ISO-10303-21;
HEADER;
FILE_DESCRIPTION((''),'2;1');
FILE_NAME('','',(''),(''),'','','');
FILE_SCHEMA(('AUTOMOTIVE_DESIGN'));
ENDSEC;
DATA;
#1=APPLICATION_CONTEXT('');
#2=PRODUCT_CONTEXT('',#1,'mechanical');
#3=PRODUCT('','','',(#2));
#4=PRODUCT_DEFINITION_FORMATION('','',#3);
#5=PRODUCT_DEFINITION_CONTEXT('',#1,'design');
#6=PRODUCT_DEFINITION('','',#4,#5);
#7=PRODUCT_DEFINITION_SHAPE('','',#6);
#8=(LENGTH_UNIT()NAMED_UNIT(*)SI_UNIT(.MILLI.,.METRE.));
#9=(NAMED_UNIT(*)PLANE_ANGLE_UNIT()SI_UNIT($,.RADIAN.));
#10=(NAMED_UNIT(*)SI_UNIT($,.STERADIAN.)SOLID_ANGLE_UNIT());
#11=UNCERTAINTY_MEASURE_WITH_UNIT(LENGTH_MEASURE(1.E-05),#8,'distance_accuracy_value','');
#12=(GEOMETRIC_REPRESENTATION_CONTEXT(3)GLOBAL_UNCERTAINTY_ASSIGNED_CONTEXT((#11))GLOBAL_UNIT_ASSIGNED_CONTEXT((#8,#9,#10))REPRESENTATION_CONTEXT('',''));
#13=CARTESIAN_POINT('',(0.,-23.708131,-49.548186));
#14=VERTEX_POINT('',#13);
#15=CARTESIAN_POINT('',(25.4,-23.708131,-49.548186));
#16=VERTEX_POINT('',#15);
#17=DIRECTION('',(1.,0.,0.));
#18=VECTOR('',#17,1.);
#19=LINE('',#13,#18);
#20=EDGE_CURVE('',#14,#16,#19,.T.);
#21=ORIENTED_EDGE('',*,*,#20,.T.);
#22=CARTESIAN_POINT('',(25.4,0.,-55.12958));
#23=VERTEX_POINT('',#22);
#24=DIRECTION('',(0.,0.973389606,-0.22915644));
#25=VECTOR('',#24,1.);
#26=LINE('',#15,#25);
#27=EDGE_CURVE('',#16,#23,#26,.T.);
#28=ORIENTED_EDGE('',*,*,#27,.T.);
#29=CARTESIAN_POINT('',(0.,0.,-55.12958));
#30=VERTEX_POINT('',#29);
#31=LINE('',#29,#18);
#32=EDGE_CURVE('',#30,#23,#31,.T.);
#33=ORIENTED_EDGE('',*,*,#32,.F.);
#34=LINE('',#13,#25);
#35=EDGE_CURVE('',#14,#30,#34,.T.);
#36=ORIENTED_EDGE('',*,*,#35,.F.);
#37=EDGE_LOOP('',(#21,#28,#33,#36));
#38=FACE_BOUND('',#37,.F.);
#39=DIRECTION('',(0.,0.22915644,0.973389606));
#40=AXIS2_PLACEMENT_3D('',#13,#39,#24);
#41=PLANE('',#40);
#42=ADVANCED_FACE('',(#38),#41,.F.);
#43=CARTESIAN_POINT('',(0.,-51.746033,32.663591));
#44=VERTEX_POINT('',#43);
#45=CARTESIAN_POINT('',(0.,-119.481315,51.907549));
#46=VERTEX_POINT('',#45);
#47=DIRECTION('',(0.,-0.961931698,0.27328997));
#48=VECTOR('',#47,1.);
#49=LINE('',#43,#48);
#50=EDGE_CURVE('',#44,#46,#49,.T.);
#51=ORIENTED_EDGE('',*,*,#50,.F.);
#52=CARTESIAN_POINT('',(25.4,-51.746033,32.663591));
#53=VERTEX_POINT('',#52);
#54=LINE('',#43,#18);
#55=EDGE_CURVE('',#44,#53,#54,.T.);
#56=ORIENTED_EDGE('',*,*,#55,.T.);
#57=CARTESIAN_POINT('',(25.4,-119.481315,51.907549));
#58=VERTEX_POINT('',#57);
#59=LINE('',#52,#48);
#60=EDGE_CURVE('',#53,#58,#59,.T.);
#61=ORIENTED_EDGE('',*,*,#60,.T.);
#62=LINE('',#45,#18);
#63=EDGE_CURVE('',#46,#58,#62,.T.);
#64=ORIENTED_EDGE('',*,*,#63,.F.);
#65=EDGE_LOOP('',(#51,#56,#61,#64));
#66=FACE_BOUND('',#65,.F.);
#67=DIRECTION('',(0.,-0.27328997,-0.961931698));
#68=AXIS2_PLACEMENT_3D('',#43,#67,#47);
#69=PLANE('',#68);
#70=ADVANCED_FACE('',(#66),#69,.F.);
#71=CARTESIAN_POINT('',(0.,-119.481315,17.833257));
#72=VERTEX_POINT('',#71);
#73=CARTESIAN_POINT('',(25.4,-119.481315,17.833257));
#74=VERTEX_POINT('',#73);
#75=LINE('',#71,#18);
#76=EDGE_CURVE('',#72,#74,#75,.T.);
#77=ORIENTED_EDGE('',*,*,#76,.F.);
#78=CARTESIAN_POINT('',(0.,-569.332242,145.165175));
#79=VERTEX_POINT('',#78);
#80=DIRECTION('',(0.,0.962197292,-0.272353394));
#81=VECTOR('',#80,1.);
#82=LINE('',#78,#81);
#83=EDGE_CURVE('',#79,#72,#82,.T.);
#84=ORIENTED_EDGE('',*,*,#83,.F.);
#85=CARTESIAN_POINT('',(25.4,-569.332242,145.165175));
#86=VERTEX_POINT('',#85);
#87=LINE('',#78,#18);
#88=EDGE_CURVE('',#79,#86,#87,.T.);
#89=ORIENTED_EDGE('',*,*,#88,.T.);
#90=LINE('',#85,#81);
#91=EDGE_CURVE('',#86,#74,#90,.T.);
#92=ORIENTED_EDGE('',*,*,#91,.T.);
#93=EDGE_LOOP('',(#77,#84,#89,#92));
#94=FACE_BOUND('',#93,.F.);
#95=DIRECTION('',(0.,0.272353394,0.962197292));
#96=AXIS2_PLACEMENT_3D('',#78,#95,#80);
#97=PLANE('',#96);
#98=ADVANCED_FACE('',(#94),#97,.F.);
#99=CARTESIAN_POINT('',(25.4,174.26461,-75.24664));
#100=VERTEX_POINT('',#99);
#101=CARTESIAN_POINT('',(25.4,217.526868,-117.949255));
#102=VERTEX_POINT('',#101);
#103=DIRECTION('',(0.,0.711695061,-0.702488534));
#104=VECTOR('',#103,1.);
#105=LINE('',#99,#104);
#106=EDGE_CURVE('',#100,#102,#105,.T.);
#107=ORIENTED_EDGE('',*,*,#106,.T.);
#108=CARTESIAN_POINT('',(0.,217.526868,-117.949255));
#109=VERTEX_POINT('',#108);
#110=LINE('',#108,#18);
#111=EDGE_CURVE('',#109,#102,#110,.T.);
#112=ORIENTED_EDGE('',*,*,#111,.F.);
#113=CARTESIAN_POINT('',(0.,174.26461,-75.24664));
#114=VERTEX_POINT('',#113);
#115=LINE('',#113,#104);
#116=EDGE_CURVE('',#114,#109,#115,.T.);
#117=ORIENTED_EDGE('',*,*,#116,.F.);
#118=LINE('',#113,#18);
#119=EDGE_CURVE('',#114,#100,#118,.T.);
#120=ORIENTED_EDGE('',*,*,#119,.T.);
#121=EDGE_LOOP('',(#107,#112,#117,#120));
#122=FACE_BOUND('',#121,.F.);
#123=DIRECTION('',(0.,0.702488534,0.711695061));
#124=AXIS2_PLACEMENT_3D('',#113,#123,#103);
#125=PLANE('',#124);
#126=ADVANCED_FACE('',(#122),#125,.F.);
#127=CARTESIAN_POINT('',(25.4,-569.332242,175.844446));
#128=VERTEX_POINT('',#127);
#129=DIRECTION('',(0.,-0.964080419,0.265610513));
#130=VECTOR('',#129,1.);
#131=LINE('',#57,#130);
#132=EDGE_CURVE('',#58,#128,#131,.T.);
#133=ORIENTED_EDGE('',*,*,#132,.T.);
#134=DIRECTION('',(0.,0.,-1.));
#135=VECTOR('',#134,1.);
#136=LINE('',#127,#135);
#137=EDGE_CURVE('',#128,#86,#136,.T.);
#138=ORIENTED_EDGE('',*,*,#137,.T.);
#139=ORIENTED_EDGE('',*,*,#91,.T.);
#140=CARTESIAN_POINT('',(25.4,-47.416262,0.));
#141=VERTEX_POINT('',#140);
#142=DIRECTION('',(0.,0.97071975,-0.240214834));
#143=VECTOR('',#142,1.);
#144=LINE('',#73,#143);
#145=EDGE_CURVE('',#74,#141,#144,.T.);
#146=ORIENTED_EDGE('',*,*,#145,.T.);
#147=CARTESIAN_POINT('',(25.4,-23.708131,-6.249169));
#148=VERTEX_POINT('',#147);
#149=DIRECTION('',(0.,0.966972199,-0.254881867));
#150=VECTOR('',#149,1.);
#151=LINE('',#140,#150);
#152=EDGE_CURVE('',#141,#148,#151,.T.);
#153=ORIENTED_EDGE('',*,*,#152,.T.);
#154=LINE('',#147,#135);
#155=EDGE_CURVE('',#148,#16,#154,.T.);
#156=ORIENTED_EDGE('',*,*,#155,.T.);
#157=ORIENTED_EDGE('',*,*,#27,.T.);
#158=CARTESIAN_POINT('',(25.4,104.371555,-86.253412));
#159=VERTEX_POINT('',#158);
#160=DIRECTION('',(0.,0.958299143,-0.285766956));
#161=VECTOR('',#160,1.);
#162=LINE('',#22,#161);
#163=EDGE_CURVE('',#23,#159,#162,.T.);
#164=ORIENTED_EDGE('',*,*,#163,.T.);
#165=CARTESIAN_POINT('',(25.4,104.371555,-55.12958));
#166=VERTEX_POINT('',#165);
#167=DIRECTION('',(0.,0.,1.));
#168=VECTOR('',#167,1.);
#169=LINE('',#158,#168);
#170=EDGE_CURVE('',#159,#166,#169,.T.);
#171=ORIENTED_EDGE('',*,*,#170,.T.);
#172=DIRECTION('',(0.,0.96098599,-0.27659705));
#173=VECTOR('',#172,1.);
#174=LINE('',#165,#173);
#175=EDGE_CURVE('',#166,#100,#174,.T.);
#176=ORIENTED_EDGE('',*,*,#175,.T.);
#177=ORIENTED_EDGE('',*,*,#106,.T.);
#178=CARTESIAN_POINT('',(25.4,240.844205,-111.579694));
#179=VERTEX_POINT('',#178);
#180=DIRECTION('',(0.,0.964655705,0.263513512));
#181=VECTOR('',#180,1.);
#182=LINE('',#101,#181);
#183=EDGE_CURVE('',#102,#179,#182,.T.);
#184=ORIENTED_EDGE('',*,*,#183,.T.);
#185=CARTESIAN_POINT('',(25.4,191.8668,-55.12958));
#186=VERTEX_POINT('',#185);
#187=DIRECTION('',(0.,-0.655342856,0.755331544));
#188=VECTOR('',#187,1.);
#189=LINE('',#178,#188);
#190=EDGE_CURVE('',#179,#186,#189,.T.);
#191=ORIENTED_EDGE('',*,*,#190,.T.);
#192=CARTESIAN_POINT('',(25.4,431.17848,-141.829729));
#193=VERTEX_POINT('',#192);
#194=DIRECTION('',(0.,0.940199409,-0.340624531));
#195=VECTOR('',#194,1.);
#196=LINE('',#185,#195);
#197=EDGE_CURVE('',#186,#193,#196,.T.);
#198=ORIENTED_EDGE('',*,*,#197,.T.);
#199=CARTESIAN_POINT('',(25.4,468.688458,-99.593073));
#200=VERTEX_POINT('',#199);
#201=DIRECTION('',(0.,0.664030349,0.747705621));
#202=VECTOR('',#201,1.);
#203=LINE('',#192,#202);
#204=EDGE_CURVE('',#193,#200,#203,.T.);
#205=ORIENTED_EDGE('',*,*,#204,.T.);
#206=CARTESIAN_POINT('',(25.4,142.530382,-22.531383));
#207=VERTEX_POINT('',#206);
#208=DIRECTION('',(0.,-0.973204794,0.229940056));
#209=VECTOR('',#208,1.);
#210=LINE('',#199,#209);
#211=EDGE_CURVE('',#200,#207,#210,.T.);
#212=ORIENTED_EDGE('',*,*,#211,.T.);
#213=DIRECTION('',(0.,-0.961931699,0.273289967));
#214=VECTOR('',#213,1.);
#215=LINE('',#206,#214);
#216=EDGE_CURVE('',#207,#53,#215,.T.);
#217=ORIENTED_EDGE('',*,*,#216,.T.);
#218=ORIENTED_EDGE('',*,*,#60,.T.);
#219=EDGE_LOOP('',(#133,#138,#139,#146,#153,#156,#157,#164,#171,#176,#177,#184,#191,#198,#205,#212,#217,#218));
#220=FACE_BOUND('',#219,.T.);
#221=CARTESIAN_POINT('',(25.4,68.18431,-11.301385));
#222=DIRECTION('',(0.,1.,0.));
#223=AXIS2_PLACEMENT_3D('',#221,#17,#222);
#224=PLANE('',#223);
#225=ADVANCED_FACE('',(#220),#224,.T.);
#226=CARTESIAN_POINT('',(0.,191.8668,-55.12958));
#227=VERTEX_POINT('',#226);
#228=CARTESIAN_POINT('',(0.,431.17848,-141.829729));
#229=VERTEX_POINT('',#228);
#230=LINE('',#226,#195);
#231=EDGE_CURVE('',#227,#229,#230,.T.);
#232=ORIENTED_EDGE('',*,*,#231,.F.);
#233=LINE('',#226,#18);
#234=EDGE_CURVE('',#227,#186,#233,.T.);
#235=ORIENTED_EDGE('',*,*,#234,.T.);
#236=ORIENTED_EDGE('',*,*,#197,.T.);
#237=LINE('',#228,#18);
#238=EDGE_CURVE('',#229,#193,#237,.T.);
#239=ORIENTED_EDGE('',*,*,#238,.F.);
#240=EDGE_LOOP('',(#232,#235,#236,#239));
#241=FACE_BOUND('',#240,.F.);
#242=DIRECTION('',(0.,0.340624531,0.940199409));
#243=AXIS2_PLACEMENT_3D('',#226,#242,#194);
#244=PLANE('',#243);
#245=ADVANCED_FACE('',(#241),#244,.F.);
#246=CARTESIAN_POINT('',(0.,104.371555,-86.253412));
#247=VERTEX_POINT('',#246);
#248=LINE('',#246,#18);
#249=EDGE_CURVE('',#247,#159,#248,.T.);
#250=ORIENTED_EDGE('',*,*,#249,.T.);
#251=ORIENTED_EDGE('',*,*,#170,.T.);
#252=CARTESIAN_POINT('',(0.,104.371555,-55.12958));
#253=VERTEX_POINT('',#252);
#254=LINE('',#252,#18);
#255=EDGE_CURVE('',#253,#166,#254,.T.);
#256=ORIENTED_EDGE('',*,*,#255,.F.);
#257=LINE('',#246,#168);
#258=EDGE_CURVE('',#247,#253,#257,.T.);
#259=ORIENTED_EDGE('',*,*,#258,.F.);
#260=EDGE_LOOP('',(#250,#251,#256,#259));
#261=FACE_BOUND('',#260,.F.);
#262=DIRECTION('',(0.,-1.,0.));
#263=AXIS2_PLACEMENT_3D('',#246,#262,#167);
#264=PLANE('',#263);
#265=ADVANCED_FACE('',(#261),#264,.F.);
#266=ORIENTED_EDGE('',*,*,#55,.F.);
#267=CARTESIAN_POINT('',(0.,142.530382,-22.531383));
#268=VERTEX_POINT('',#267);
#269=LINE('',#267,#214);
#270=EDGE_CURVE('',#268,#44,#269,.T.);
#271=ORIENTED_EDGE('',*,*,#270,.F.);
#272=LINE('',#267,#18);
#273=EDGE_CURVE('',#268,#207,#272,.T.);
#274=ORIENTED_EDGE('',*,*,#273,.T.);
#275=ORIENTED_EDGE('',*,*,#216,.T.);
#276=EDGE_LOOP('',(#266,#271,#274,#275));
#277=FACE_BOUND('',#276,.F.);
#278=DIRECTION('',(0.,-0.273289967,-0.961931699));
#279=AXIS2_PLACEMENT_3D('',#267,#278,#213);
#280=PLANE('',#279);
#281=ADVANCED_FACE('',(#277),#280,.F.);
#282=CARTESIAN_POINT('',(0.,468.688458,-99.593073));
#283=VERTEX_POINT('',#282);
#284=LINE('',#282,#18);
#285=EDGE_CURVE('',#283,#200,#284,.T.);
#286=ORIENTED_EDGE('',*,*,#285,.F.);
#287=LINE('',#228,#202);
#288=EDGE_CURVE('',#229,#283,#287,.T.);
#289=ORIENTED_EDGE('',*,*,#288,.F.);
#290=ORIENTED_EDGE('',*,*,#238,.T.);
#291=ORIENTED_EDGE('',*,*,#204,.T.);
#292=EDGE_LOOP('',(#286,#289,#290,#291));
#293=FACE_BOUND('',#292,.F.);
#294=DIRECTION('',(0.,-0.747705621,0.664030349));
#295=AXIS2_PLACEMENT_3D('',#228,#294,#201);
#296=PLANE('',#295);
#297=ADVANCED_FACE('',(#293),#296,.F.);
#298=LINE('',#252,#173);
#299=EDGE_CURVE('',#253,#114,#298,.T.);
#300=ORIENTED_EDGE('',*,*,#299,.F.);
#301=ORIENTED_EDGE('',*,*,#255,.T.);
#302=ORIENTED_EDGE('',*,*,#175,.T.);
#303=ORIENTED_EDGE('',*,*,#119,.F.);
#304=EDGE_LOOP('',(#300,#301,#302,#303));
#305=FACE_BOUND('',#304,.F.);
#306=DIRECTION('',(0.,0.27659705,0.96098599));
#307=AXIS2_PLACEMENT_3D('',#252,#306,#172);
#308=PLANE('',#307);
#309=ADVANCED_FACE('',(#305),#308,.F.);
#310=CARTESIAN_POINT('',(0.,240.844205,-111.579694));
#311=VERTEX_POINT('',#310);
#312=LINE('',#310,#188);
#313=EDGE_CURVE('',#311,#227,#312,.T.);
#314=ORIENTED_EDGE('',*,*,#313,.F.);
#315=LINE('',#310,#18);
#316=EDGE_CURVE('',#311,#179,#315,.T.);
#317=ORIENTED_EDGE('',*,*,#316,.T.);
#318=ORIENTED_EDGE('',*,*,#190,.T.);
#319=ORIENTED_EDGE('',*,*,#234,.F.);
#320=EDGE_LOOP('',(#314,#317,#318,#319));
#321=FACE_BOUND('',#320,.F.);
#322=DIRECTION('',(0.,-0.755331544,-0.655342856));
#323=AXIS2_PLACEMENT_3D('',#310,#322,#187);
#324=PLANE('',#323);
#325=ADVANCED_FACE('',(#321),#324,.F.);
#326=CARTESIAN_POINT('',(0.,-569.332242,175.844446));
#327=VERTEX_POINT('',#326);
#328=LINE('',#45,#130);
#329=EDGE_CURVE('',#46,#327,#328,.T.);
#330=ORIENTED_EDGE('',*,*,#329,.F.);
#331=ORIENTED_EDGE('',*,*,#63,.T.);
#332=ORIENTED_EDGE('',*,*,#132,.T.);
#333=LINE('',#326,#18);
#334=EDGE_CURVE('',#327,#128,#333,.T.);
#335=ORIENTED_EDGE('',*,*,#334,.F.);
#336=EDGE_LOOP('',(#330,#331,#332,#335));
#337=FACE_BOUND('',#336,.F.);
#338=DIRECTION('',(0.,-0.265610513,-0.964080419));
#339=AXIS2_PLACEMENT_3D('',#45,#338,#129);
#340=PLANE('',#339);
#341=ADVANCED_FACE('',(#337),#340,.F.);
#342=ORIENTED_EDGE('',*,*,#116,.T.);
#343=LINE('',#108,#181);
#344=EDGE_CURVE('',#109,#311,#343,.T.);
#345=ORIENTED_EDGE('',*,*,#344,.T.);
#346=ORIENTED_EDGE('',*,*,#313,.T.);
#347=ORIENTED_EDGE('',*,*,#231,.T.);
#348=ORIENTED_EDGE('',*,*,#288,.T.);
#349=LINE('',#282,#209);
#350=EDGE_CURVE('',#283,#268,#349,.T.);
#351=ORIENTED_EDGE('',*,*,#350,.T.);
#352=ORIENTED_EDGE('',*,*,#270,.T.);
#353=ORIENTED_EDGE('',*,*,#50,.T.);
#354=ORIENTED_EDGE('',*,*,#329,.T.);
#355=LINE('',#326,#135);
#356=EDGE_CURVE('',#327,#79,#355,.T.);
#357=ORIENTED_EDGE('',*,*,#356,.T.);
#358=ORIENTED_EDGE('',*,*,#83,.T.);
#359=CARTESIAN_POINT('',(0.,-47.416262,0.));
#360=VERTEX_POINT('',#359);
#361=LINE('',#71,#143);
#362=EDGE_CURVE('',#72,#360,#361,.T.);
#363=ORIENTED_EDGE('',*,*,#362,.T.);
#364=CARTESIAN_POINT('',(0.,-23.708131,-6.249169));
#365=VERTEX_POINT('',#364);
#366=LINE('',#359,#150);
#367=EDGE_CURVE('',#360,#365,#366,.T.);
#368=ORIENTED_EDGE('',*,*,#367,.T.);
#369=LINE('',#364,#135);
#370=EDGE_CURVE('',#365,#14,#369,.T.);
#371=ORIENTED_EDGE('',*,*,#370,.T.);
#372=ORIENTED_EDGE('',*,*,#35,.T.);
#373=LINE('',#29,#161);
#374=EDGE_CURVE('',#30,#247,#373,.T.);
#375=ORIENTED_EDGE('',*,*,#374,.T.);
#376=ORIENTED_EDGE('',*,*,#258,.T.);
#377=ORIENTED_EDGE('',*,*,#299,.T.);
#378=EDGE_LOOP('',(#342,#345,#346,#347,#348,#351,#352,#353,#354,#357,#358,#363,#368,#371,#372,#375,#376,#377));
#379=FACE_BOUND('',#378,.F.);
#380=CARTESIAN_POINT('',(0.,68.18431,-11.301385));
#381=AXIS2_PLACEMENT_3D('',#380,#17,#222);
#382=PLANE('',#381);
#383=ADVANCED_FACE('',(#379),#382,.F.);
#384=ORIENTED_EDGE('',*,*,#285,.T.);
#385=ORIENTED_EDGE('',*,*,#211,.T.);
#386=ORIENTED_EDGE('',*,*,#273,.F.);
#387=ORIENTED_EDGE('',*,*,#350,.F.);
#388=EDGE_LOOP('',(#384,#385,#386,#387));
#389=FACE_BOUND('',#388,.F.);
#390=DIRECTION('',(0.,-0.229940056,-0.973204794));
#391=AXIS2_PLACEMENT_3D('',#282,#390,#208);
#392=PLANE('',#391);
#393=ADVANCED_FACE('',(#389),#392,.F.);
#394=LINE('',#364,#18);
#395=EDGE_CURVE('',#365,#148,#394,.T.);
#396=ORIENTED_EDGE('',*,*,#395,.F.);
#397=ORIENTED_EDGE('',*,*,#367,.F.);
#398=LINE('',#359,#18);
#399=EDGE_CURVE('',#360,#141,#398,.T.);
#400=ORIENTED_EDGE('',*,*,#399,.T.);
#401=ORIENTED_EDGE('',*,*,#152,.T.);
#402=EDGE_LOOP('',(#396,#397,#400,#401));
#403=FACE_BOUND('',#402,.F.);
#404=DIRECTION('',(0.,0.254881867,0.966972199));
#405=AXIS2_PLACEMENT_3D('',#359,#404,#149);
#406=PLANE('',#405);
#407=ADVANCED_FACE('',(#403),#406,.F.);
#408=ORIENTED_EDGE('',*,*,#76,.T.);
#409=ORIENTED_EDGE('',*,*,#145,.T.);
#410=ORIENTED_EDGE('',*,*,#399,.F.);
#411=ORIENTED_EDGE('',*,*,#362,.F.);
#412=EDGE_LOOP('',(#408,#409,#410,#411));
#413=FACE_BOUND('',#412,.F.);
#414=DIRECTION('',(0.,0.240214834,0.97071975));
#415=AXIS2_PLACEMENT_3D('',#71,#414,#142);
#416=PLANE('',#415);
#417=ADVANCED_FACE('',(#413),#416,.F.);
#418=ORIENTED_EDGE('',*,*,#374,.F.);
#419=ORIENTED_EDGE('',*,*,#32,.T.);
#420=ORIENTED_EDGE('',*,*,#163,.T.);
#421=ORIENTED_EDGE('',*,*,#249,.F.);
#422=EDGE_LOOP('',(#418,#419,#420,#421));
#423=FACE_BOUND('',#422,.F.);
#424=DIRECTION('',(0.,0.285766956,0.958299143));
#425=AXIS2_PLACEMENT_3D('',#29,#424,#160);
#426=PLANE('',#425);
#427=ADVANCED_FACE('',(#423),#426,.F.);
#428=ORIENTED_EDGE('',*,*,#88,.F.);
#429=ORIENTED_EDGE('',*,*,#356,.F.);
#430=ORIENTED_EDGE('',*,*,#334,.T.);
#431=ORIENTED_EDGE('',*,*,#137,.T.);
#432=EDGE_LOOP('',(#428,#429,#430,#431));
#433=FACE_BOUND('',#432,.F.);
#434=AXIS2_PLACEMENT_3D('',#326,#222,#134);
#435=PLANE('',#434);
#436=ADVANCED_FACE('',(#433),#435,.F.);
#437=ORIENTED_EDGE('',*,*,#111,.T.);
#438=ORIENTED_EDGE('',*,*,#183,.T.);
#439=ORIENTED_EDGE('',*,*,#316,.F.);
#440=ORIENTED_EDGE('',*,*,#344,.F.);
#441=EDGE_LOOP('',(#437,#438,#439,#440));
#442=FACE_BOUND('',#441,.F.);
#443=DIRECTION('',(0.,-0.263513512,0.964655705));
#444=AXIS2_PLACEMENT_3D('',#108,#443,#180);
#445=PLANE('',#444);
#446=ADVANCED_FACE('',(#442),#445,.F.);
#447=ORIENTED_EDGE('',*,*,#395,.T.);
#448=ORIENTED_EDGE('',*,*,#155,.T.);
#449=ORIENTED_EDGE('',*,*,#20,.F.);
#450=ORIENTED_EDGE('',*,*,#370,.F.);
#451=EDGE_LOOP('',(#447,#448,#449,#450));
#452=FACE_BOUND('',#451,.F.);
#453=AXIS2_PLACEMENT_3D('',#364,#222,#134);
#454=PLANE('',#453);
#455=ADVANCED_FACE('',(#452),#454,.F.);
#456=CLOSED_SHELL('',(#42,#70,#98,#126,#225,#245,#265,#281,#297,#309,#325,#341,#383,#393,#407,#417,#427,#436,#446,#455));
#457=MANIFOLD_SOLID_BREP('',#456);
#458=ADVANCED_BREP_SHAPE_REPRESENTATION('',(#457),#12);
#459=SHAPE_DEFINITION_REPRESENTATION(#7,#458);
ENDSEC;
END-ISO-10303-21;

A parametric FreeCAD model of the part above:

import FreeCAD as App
import Part
import Sketcher

V = App.Vector
Q = App.Units.Quantity


def add_polygon(sketch, points):
    """Adds a closed chain of lines whose ends are joined by coincident constraints."""
    first, n = sketch.GeometryCount, len(points)
    for a, b in zip(points, points[1:] + points[:1]):
        sketch.addGeometry(Part.LineSegment(App.Vector(*a, 0), App.Vector(*b, 0)), False)
    for i in range(n):
        sketch.addConstraint(Sketcher.Constraint("Coincident", first + i, 2, first + (i + 1) % n, 1))

doc = App.newDocument("Part")
body = doc.addObject("PartDesign::Body", "Body")

# Sketch on YZ plane
sketch1 = doc.addObject("Sketcher::SketchObject", "Sketch")
body.addObject(sketch1)
sketch1.AttachmentSupport = (doc.YZ_Plane, [""])
sketch1.MapMode = "FlatFace"
add_polygon(sketch1, [(0, -55.12958), (104.371555, -86.253412), (104.371555, -55.12958), (174.26461, -75.24664), (217.526868, -117.949255), (240.844205, -111.579694), (191.8668, -55.12958), (431.17848, -141.829729), (468.688458, -99.593073), (142.530382, -22.531383), (-51.746033, 32.663591), (-119.481315, 51.907549), (-569.332242, 175.844446), (-569.332242, 145.165175), (-119.481315, 17.833257), (-47.416262, 0), (-23.708131, -6.249169), (-23.708131, -49.548186)])  # lines 0-17
sketch1.addConstraint(Sketcher.Constraint("Vertical", 1))
sketch1.addConstraint(Sketcher.Constraint("Vertical", 12))
sketch1.addConstraint(Sketcher.Constraint("Vertical", 16))
sketch1.addConstraint(Sketcher.Constraint("PointOnObject", 14, 2, -1))
sketch1.addConstraint(Sketcher.Constraint("PointOnObject", 17, 2, -2))
sketch1.addConstraint(Sketcher.Constraint("Parallel", 9, 10))
sketch1.addConstraint(Sketcher.Constraint("Horizontal", 1, 2, 5, 2))
sketch1.addConstraint(Sketcher.Constraint("Horizontal", 5, 2, 17, 2))
sketch1.addConstraint(Sketcher.Constraint("Vertical", 10, 2, 13, 2))
sketch1.addConstraint(Sketcher.Constraint("DistanceX", 10, 2, 2, 2, Q("11.5648002 in")))
sketch1.addConstraint(Sketcher.Constraint("DistanceY", 1, 1, 1, 2, Q("31.123832 mm")))
sketch1.addConstraint(Sketcher.Constraint("DistanceY", 12, 2, 12, 1, Q("30.679271 mm")))
sketch1.addConstraint(Sketcher.Constraint("DistanceX", -1, 1, 5, 2, Q("191.8668 mm")))
sketch1.addConstraint(Sketcher.Constraint("DistanceX", 9, 2, 15, 2, Q("28.037902 mm")))
sketch1.addConstraint(Sketcher.Constraint("Distance", 7, Q("56.488349 mm")))
sketch1.addConstraint(Sketcher.Constraint("Distance", 17, Q("24.356261 mm")))
sketch1.addConstraint(Sketcher.Constraint("DistanceY", 16, 2, 16, 1, Q("43.299017 mm")))
sketch1.addConstraint(Sketcher.Constraint("DistanceY", 0, 2, -1, 1, Q("86.253412 mm")))
sketch1.addConstraint(Sketcher.Constraint("DistanceX", -1, 1, 2, 2, Q("174.26461 mm")))
sketch1.addConstraint(Sketcher.Constraint("DistanceY", 2, 2, -1, 1, Q("75.24664 mm")))
sketch1.addConstraint(Sketcher.Constraint("DistanceX", -1, 1, 3, 2, Q("217.526868 mm")))
sketch1.addConstraint(Sketcher.Constraint("DistanceX", -1, 1, 6, 2, Q("431.17848 mm")))
sketch1.addConstraint(Sketcher.Constraint("DistanceY", 6, 2, -1, 1, Q("141.829729 mm")))
sketch1.addConstraint(Sketcher.Constraint("DistanceX", -1, 1, 7, 2, Q("468.688458 mm")))
sketch1.addConstraint(Sketcher.Constraint("DistanceX", -1, 1, 8, 2, Q("142.530382 mm")))
sketch1.addConstraint(Sketcher.Constraint("DistanceY", -1, 1, 9, 2, Q("32.663591 mm")))
sketch1.addConstraint(Sketcher.Constraint("DistanceY", -1, 1, 10, 2, Q("51.907549 mm")))
sketch1.addConstraint(Sketcher.Constraint("DistanceX", 11, 2, -1, 1, Q("569.332242 mm")))
sketch1.addConstraint(Sketcher.Constraint("DistanceX", 15, 2, -1, 1, Q("23.708131 mm")))
sketch1.addConstraint(Sketcher.Constraint("DistanceY", 3, 2, 4, 2, Q("6.369561 mm")))
sketch1.addConstraint(Sketcher.Constraint("DistanceX", 0, 2, 4, 2, Q("136.47265 mm")))
sketch1.addConstraint(Sketcher.Constraint("DistanceY", 4, 2, 7, 2, Q("11.986621 mm")))
sketch1.addConstraint(Sketcher.Constraint("DistanceX", 9, 2, 1, 2, Q("156.117588 mm")))
sketch1.addConstraint(Sketcher.Constraint("DistanceY", 8, 2, 11, 2, Q("198.375829 mm")))
sketch1.addConstraint(Sketcher.Constraint("DistanceY", 0, 2, 13, 2, Q("104.086669 mm")))
sketch1.addConstraint(Sketcher.Constraint("DistanceX", 9, 2, 14, 2, Q("4.329771 mm")))
pad1 = doc.addObject("PartDesign::Pad", "Pad")
body.addObject(pad1)
pad1.Profile = sketch1
pad1.Length = Q("1 in")

doc.recompute()
